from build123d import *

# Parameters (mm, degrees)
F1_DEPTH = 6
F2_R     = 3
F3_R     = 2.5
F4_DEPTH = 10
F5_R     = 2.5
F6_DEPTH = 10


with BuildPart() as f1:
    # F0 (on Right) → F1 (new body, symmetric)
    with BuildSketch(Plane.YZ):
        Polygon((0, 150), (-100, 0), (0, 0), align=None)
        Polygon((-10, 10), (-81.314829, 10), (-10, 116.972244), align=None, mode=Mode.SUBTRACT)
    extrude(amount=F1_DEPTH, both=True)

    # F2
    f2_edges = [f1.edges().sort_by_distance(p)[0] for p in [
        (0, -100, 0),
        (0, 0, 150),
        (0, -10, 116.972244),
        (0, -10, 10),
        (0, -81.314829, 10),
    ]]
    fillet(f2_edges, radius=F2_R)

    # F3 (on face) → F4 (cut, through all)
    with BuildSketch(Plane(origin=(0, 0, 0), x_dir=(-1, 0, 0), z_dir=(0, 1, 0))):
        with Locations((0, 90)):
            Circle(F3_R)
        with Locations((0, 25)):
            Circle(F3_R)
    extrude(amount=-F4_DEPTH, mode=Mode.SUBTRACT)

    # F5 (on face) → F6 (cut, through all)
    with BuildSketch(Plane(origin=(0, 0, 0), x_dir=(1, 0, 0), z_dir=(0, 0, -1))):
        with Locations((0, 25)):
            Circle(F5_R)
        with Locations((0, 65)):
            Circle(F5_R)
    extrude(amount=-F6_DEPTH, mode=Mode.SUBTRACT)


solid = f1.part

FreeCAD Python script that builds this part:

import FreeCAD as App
import Part
import Sketcher
Q = App.Units.Quantity


def edges_at(feature, points):
    """Names of the edges that pass closest to the given points."""
    edges = feature.Shape.Edges
    near = lambda p: min(range(len(edges)), key=lambda i: edges[i].distToShape(Part.Vertex(*p))[0])
    return sorted({f"Edge{near(p) + 1}" for p in points})


def add_polygon(sketch, points):
    """Adds a closed chain of lines whose ends are joined by coincident constraints."""
    first, n = sketch.GeometryCount, len(points)
    for a, b in zip(points, points[1:] + points[:1]):
        sketch.addGeometry(Part.LineSegment(App.Vector(*a, 0), App.Vector(*b, 0)), False)
    for i in range(n):
        sketch.addConstraint(Sketcher.Constraint("Coincident", first + i, 2, first + (i + 1) % n, 1))

doc = App.newDocument("Part")
body = doc.addObject("PartDesign::Body", "Body")

# Sketch on YZ plane
sketch1 = doc.addObject("Sketcher::SketchObject", "Sketch")
body.addObject(sketch1)
sketch1.AttachmentSupport = (doc.YZ_Plane, [""])
sketch1.MapMode = "FlatFace"
add_polygon(sketch1, [(0, 150), (-100, 0), (0, 0)])  # lines 0-2
add_polygon(sketch1, [(-10, 117), (-10, 10), (-81, 10)])  # lines 3-5
sketch1.addConstraint(Sketcher.Constraint("Horizontal", 1))
sketch1.addConstraint(Sketcher.Constraint("Vertical", 2))
sketch1.addConstraint(Sketcher.Constraint("Vertical", 3))
sketch1.addConstraint(Sketcher.Constraint("Horizontal", 4))
sketch1.addConstraint(Sketcher.Constraint("Coincident", 1, 2, -1, 1))
sketch1.addConstraint(Sketcher.Constraint("Parallel", 0, 5))
sketch1.addConstraint(Sketcher.Constraint("DistanceX", 1, 1, 1, 2, Q("100 mm")))
sketch1.addConstraint(Sketcher.Constraint("DistanceY", 2, 1, 2, 2, Q("150 mm")))
sketch1.addConstraint(Sketcher.Constraint("DistanceX", 3, 2, -1, 1, Q("10 mm")))
sketch1.addConstraint(Sketcher.Constraint("DistanceY", -1, 1, 3, 2, Q("10 mm")))
sketch1.addConstraint(Sketcher.Constraint("DistanceX", 4, 2, 4, 1, Q("71.314829 mm")))
pad1 = doc.addObject("PartDesign::Pad", "Pad")
body.addObject(pad1)
pad1.Profile = sketch1
pad1.Length = 12
pad1.Midplane = True
doc.recompute()

fillet = doc.addObject("PartDesign::Fillet", "Fillet")
body.addObject(fillet)
fillet.Base = (pad1, edges_at(pad1, [
    (0, -100, 0),
    (0, 0, 150),
    (0, -10, 116.972),
    (0, -10, 10),
    (0, -81.315, 10),
]))
fillet.Radius = 3

# Sketch on XZ plane
sketch2 = doc.addObject("Sketcher::SketchObject", "Sketch001")
body.addObject(sketch2)
sketch2.AttachmentSupport = (doc.XZ_Plane, [""])
sketch2.MapMode = "FlatFace"
sketch2.addGeometry(Part.Circle(App.Vector(0, 90, 0), App.Vector(0, 0, 1), 2.5), False)
sketch2.addGeometry(Part.Circle(App.Vector(0, 25, 0), App.Vector(0, 0, 1), 2.5), False)
sketch2.addConstraint(Sketcher.Constraint("Equal", 0, 1))
sketch2.addConstraint(Sketcher.Constraint("PointOnObject", 0, 3, -2))
sketch2.addConstraint(Sketcher.Constraint("PointOnObject", 1, 3, -2))
sketch2.addConstraint(Sketcher.Constraint("Diameter", 0, Q("5 mm")))
sketch2.addConstraint(Sketcher.Constraint("DistanceY", -1, 1, 0, 3, Q("90 mm")))
sketch2.addConstraint(Sketcher.Constraint("DistanceY", -1, 1, 1, 3, Q("25 mm")))
pocket1 = doc.addObject("PartDesign::Pocket", "Pocket")
body.addObject(pocket1)
pocket1.Profile = sketch2
pocket1.Length = 10
pocket1.Reversed = True

# Sketch on XY plane
sketch3 = doc.addObject("Sketcher::SketchObject", "Sketch002")
body.addObject(sketch3)
sketch3.AttachmentSupport = (doc.XY_Plane, [""])
sketch3.MapMode = "FlatFace"
sketch3.addGeometry(Part.Circle(App.Vector(0, -25, 0), App.Vector(0, 0, 1), 2.5), False)
sketch3.addGeometry(Part.Circle(App.Vector(0, -65, 0), App.Vector(0, 0, 1), 2.5), False)
sketch3.addConstraint(Sketcher.Constraint("Equal", 0, 1))
sketch3.addConstraint(Sketcher.Constraint("PointOnObject", 0, 3, -2))
sketch3.addConstraint(Sketcher.Constraint("PointOnObject", 1, 3, -2))
sketch3.addConstraint(Sketcher.Constraint("Diameter", 0, Q("5 mm")))
sketch3.addConstraint(Sketcher.Constraint("DistanceY", 0, 3, -1, 1, Q("25 mm")))
sketch3.addConstraint(Sketcher.Constraint("DistanceY", 1, 3, -1, 1, Q("65 mm")))
pocket2 = doc.addObject("PartDesign::Pocket", "Pocket001")
body.addObject(pocket2)
pocket2.Profile = sketch3
pocket2.Length = 10
pocket2.Reversed = True

doc.recompute()
